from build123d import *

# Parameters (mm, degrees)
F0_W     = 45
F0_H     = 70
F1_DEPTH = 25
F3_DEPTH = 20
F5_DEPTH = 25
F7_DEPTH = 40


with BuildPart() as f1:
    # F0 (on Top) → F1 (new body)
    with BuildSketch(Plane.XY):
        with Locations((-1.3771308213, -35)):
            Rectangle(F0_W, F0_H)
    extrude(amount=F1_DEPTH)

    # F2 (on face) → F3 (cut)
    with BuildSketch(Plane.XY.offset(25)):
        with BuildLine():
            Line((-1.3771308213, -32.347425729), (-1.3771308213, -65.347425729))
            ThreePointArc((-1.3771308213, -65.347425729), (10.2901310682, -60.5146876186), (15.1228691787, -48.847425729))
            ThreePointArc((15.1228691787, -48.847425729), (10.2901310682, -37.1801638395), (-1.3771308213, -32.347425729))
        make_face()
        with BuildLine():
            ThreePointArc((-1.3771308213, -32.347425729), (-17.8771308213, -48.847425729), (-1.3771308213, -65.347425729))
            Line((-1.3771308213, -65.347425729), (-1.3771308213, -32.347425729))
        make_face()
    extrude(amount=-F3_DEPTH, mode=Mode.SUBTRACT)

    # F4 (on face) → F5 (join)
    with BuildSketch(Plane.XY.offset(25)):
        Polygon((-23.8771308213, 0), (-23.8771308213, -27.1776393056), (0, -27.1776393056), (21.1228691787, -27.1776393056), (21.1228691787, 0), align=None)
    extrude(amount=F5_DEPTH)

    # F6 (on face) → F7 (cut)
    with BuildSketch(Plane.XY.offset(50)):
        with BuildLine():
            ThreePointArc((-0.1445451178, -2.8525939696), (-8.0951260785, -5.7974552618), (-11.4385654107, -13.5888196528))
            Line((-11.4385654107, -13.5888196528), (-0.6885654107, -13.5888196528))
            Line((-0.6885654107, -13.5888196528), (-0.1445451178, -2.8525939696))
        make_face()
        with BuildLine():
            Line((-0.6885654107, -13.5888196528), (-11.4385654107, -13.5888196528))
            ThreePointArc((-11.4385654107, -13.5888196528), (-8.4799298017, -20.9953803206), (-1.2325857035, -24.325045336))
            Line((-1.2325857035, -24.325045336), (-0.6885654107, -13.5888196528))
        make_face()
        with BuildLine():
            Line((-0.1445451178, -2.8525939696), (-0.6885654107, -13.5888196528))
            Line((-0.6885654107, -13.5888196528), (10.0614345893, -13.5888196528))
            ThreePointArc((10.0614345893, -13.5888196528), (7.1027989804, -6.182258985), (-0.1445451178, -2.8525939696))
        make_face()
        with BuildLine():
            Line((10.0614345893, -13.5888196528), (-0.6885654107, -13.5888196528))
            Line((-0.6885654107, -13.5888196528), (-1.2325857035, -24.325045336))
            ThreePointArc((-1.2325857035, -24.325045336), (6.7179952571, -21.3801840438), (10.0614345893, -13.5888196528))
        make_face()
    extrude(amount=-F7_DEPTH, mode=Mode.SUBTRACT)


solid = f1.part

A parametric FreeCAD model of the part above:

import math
import FreeCAD as App
import Part
import Sketcher
from FreeCAD import Vector
Q = App.Units.Quantity


def add_polygon(sketch, points):
    """Adds a closed chain of lines whose ends are joined by coincident constraints."""
    first, n = sketch.GeometryCount, len(points)
    for a, b in zip(points, points[1:] + points[:1]):
        sketch.addGeometry(Part.LineSegment(App.Vector(*a, 0), App.Vector(*b, 0)), False)
    for i in range(n):
        sketch.addConstraint(Sketcher.Constraint("Coincident", first + i, 2, first + (i + 1) % n, 1))

doc = App.newDocument("Part")
body = doc.addObject("PartDesign::Body", "Body")

sketch1 = body.newObject("Sketcher::SketchObject", "Sketch")
sketch1.AttachmentSupport = (doc.getObject("XY_Plane"), [""])
sketch1.MapMode = "FlatFace"
add_polygon(sketch1, [(-24, 0), (-24, -70), (21, -70), (21, 0)])
sketch1.addConstraint([
    Sketcher.Constraint("Vertical", 0),
    Sketcher.Constraint("Horizontal", 1),
    Sketcher.Constraint("Vertical", 2),
    Sketcher.Constraint("Horizontal", 3),
    Sketcher.Constraint("PointOnObject", 2, 2, -1),
    Sketcher.Constraint("DistanceX", 1, 1, 1, 2, Q("45 mm")),
    Sketcher.Constraint("DistanceY", 0, 2, 0, 1, Q("70 mm")),
    Sketcher.Constraint("DistanceX", 0, 2, -1, 1, Q("23.877131 mm")),
])
pad1 = body.newObject("PartDesign::Pad", "Pad")
pad1.Profile = sketch1
pad1.Length = 25

sketch2 = body.newObject("Sketcher::SketchObject", "Sketch001")
sketch2.AttachmentSupport = (doc.getObject("XY_Plane"), [""])
sketch2.MapMode = "FlatFace"
sketch2.AttachmentOffset = App.Placement(Vector(0, 0, 25), App.Rotation())
sketch2.addGeometry([
    Part.ArcOfCircle(Part.Circle(Vector(-1, -49, 0), Vector(0, 0, 1), 16), math.radians(-90), math.radians(0)),
    Part.ArcOfCircle(Part.Circle(Vector(-1, -49, 0), Vector(0, 0, 1), 16), math.radians(0), math.radians(90)),
    Part.ArcOfCircle(Part.Circle(Vector(-1, -49, 0), Vector(0, 0, 1), 16), math.radians(90), math.radians(270)),
], False)
sketch2.addConstraint([
    Sketcher.Constraint("Tangent", 0, 2, 1, 1),
    Sketcher.Constraint("Tangent", 1, 2, 2, 1),
    Sketcher.Constraint("Tangent", 2, 2, 0, 1),
    Sketcher.Constraint("Horizontal", 2, 3, 0, 2),
    Sketcher.Constraint("Vertical", 2, 3, 1, 2),
    Sketcher.Constraint("Vertical", 1, 2, 2, 2),
    Sketcher.Constraint("Radius", 0, Q("16.5 mm")),
    Sketcher.Constraint("DistanceX", 0, 3, -1, 1, Q("1.377131 mm")),
    Sketcher.Constraint("DistanceY", 0, 3, -1, 1, Q("48.847426 mm")),
])
pocket1 = body.newObject("PartDesign::Pocket", "Pocket")
pocket1.Profile = sketch2
pocket1.Length = 20

sketch3 = body.newObject("Sketcher::SketchObject", "Sketch002")
sketch3.AttachmentSupport = (doc.getObject("XY_Plane"), [""])
sketch3.MapMode = "FlatFace"
sketch3.AttachmentOffset = App.Placement(Vector(0, 0, 25), App.Rotation())
add_polygon(sketch3, [(-24, 0), (-24, -27), (21, -27), (21, 0)])
sketch3.addConstraint([
    Sketcher.Constraint("Vertical", 0),
    Sketcher.Constraint("Horizontal", 1),
    Sketcher.Constraint("Vertical", 2),
    Sketcher.Constraint("Horizontal", 3),
    Sketcher.Constraint("PointOnObject", 2, 2, -1),
    Sketcher.Constraint("DistanceX", 1, 1, 1, 2, Q("45 mm")),
    Sketcher.Constraint("DistanceY", 0, 2, 0, 1, Q("27.177639 mm")),
    Sketcher.Constraint("DistanceX", 0, 2, -1, 1, Q("23.877131 mm")),
])
pad2 = body.newObject("PartDesign::Pad", "Pad001")
pad2.Profile = sketch3
pad2.Length = 25

sketch4 = body.newObject("Sketcher::SketchObject", "Sketch003")
sketch4.AttachmentSupport = (doc.getObject("XY_Plane"), [""])
sketch4.MapMode = "FlatFace"
sketch4.AttachmentOffset = App.Placement(Vector(0, 0, 50), App.Rotation())
sketch4.addGeometry([
    Part.ArcOfCircle(Part.Circle(Vector(-1, -14, 0), Vector(0, 0, 1), 11), math.radians(87), math.radians(180)),
    Part.ArcOfCircle(Part.Circle(Vector(-1, -14, 0), Vector(0, 0, 1), 11), math.radians(180), math.radians(267)),
    Part.ArcOfCircle(Part.Circle(Vector(-1, -14, 0), Vector(0, 0, 1), 11), math.radians(-93), math.radians(0)),
    Part.ArcOfCircle(Part.Circle(Vector(-1, -14, 0), Vector(0, 0, 1), 11), math.radians(0), math.radians(87)),
], False)
sketch4.addConstraint([
    Sketcher.Constraint("Tangent", 0, 2, 1, 1),
    Sketcher.Constraint("Tangent", 1, 2, 2, 1),
    Sketcher.Constraint("Tangent", 2, 2, 3, 1),
    Sketcher.Constraint("Tangent", 3, 2, 0, 1),
    Sketcher.Constraint("Equal", 0, 1),
    Sketcher.Constraint("Horizontal", 3, 3, 0, 2),
    Sketcher.Constraint("Horizontal", 0, 2, 2, 2),
    Sketcher.Constraint("Radius", 0, Q("10.75 mm")),
    Sketcher.Constraint("DistanceY", 0, 3, -1, 1, Q("13.58882 mm")),
    Sketcher.Constraint("DistanceX", 1, 2, 0, 3, Q("0.54402 mm")),
    Sketcher.Constraint("DistanceX", 0, 3, 3, 2, Q("0.54402 mm")),
    Sketcher.Constraint("DistanceX", 0, 3, -1, 1, Q("0.688565 mm")),
])
pocket2 = body.newObject("PartDesign::Pocket", "Pocket001")
pocket2.Profile = sketch4
pocket2.Length = 40

doc.recompute()
